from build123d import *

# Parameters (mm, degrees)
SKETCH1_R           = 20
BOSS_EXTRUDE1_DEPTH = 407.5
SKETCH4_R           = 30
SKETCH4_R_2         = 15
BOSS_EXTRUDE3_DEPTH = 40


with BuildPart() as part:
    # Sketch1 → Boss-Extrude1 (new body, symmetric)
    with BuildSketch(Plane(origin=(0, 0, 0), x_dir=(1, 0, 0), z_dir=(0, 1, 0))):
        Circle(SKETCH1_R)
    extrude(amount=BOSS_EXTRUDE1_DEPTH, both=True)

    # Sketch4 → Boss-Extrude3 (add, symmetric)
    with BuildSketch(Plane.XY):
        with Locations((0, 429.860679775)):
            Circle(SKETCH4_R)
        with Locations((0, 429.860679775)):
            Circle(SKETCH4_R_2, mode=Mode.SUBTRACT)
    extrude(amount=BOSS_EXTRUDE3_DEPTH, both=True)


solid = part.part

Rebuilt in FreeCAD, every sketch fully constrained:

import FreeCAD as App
import Part
import Sketcher

V = App.Vector

doc = App.newDocument("Part")
body = doc.addObject("PartDesign::Body", "Body")

# Sketch on XZ plane
sketch1 = body.newObject("Sketcher::SketchObject", "Sketch")
sketch1.AttachmentSupport = (doc.getObject("XZ_Plane"), [""])
sketch1.MapMode = "FlatFace"
sketch1.addGeometry(Part.Circle(V(0, 0, 0), V(0, 0, 1), 20), False)
sketch1.addConstraint([
    Sketcher.Constraint("Coincident", 0, 3, -1, 1),
    Sketcher.Constraint("Diameter", 0, 40.0),
])
pad1 = body.newObject("PartDesign::Pad", "Pad")
pad1.Profile = sketch1
pad1.Length = 815
pad1.Midplane = True

# Sketch on XY plane
sketch2 = body.newObject("Sketcher::SketchObject", "Sketch001")
sketch2.AttachmentSupport = (doc.getObject("XY_Plane"), [""])
sketch2.MapMode = "FlatFace"
sketch2.addGeometry([
    Part.Circle(V(0, 430, 0), V(0, 0, 1), 30),
    Part.Circle(V(0, 430, 0), V(0, 0, 1), 15),
], False)
sketch2.addConstraint([
    Sketcher.Constraint("Coincident", 1, 3, 0, 3),
    Sketcher.Constraint("PointOnObject", 0, 3, -2),
    Sketcher.Constraint("Diameter", 0, 60.0),
    Sketcher.Constraint("Diameter", 1, 30.0),
    Sketcher.Constraint("DistanceY", -1, 1, 0, 3, 429.86068),
])
pad2 = body.newObject("PartDesign::Pad", "Pad001")
pad2.Profile = sketch2
pad2.Length = 80
pad2.Midplane = True

doc.recompute()
